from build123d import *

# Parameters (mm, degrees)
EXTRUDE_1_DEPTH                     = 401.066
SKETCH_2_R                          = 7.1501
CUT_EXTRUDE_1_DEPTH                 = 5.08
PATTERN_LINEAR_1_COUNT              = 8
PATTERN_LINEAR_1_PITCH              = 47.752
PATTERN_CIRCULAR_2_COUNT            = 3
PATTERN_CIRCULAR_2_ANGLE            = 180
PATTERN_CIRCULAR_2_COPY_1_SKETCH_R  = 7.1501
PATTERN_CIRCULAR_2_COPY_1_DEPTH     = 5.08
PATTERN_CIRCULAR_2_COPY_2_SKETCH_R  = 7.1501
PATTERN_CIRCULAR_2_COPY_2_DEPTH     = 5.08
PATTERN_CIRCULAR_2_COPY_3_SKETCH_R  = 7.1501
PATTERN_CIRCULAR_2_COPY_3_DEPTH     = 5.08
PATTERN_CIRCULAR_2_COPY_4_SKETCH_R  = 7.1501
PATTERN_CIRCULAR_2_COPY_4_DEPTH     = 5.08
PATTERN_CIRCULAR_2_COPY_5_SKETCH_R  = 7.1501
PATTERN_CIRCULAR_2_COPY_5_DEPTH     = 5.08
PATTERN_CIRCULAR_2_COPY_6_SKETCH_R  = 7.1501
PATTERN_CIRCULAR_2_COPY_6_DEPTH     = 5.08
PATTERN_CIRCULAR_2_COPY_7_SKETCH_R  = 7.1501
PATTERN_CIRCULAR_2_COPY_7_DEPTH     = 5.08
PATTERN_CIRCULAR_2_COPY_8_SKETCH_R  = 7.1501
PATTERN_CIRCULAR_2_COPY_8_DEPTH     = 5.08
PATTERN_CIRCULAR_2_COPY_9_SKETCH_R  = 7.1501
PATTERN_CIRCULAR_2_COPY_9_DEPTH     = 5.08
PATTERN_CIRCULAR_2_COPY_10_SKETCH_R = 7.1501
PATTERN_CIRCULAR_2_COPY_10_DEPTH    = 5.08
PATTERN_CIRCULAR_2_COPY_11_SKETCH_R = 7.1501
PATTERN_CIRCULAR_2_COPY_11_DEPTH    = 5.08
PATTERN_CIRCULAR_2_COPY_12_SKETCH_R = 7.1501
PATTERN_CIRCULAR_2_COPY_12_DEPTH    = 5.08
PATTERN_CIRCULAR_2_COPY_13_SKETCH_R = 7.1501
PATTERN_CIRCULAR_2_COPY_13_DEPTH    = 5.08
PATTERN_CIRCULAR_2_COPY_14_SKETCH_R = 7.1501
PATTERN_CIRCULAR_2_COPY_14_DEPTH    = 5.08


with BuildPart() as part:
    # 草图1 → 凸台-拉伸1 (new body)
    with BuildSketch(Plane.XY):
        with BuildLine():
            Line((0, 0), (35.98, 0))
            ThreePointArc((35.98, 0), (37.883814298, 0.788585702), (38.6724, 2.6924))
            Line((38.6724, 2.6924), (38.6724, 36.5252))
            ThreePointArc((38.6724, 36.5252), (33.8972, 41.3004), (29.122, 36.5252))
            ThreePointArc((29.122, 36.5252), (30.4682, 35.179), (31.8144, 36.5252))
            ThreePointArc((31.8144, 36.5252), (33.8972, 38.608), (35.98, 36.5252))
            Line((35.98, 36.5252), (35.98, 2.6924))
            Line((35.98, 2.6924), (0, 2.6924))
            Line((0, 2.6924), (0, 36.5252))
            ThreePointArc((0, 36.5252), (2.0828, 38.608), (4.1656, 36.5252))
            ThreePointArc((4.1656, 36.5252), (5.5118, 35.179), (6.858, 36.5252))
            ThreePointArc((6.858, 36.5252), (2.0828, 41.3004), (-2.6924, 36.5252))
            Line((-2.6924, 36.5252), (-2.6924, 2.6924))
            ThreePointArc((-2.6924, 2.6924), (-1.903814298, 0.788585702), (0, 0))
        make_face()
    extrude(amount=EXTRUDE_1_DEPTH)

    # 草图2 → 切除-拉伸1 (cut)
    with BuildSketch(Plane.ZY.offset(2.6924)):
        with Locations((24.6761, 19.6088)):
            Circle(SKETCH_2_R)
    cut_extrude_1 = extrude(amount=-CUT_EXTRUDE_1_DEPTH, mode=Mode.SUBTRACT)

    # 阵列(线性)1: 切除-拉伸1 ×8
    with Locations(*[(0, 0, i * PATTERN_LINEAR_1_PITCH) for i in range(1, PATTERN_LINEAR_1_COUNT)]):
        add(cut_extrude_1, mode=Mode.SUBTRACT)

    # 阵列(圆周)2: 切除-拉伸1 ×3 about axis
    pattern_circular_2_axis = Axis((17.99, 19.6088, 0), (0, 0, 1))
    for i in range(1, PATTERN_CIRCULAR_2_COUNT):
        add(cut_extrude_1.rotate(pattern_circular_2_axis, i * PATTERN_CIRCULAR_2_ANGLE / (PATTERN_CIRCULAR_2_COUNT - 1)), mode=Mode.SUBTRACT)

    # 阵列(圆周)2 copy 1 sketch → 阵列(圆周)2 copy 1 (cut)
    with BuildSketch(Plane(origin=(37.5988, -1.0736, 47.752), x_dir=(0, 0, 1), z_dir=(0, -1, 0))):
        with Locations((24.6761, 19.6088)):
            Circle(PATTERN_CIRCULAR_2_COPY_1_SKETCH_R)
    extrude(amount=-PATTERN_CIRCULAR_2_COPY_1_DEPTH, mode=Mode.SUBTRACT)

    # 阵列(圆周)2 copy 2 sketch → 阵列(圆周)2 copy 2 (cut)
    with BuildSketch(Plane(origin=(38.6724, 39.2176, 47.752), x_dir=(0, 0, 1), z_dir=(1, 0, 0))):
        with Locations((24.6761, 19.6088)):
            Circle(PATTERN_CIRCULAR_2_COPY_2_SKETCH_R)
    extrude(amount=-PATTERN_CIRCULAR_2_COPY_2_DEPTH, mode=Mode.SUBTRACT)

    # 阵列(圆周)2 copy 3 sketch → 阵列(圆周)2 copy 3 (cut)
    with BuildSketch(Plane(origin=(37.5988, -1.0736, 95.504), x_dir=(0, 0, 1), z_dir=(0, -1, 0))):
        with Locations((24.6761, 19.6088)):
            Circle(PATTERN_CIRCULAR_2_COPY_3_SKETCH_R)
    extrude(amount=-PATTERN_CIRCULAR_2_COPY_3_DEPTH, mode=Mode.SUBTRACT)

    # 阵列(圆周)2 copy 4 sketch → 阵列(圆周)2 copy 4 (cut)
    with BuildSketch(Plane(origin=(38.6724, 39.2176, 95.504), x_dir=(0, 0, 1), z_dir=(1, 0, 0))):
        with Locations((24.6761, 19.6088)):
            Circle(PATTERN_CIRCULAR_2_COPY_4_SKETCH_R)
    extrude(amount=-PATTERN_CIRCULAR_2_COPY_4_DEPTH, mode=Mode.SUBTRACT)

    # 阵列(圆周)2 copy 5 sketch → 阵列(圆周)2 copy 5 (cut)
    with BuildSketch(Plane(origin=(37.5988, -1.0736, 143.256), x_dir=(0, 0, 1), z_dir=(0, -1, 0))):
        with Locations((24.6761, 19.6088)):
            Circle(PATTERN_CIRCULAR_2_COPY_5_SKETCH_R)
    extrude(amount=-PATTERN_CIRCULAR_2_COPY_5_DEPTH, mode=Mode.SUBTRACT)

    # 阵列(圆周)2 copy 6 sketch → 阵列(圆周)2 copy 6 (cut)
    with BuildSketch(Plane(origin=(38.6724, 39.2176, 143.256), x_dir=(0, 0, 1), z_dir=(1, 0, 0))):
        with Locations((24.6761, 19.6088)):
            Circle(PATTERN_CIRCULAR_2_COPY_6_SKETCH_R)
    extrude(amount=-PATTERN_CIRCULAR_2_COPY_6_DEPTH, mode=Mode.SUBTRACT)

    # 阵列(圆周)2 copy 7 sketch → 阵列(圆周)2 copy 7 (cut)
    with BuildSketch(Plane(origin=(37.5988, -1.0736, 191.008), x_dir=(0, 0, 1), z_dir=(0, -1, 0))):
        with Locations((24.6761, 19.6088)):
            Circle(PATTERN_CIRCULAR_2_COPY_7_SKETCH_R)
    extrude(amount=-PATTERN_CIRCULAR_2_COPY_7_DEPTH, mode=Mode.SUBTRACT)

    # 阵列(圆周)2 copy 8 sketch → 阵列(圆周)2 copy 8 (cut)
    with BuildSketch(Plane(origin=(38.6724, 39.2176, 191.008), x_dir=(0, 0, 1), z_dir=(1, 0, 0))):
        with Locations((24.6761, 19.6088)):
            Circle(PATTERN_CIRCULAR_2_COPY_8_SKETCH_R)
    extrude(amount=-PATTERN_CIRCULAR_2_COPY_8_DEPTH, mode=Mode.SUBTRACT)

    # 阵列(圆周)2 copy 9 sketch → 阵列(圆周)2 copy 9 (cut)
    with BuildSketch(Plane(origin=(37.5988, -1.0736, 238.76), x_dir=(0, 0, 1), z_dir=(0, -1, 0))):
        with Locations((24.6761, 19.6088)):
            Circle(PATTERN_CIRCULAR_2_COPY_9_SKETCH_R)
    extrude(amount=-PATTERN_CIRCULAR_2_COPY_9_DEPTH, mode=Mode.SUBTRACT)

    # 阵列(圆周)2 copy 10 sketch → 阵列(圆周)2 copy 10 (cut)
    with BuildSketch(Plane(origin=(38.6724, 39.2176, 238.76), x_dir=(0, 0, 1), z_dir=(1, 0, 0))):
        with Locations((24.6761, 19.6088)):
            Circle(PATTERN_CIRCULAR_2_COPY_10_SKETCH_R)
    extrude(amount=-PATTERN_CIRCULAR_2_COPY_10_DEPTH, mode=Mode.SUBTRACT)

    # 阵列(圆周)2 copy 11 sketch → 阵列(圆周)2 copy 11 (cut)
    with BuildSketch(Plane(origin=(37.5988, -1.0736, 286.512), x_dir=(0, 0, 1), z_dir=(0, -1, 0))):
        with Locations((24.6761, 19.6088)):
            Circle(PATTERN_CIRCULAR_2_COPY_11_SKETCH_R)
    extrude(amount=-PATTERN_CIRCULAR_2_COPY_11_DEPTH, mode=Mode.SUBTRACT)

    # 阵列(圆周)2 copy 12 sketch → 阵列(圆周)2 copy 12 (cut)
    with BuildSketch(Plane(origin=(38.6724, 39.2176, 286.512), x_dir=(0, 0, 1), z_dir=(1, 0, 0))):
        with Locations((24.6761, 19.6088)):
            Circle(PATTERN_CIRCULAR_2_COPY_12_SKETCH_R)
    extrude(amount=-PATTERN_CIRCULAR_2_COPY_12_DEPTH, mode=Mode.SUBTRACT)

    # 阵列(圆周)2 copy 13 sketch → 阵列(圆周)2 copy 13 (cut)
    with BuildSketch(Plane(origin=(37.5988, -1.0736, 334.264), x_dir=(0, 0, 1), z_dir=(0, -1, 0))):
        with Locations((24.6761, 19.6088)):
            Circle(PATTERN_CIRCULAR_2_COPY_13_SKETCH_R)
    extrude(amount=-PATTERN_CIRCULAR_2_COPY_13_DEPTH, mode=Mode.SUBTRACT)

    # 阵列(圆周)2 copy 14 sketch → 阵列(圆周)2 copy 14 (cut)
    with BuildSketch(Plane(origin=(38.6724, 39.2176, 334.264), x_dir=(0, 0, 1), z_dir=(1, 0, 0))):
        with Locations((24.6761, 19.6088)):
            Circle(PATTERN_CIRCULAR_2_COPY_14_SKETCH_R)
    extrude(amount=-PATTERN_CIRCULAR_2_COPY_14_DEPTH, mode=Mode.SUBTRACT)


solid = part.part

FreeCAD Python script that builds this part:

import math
import FreeCAD as App
import Part
import Sketcher
from FreeCAD import Vector
Q = App.Units.Quantity

doc = App.newDocument("Part")
body = doc.addObject("PartDesign::Body", "Body")

sketch1 = body.newObject("Sketcher::SketchObject", "Sketch")
sketch1.AttachmentSupport = (doc.getObject("XY_Plane"), [""])
sketch1.MapMode = "FlatFace"
sketch1.addGeometry(Part.LineSegment(Vector(0, 0, 0), Vector(36, 0, 0)), False)
sketch1.addGeometry(Part.ArcOfCircle(Part.Circle(Vector(36, 2.7, 0), Vector(0, 0, 1), 2.7), math.radians(-90), math.radians(0)), False)
sketch1.addGeometry(Part.LineSegment(Vector(38.7, 2.7, 0), Vector(38.7, 36.5, 0)), False)
sketch1.addGeometry(Part.ArcOfCircle(Part.Circle(Vector(33.9, 36.5, 0), Vector(0, 0, 1), 4.8), math.radians(0), math.radians(180)), False)
sketch1.addGeometry(Part.ArcOfCircle(Part.Circle(Vector(30.5, 36.5, 0), Vector(0, 0, 1), 1.3), math.radians(180), math.radians(360)), False)
sketch1.addGeometry(Part.ArcOfCircle(Part.Circle(Vector(33.9, 36.5, 0), Vector(0, 0, 1), 2.1), math.radians(0), math.radians(180)), False)
sketch1.addGeometry(Part.LineSegment(Vector(36, 36.5, 0), Vector(36, 2.7, 0)), False)
sketch1.addGeometry(Part.LineSegment(Vector(36, 2.7, 0), Vector(0, 2.7, 0)), False)
sketch1.addGeometry(Part.LineSegment(Vector(0, 2.7, 0), Vector(0, 36.5, 0)), False)
sketch1.addGeometry(Part.ArcOfCircle(Part.Circle(Vector(2.1, 36.5, 0), Vector(0, 0, 1), 2.1), math.radians(0), math.radians(180)), False)
sketch1.addGeometry(Part.ArcOfCircle(Part.Circle(Vector(5.5, 36.5, 0), Vector(0, 0, 1), 1.3), math.radians(180), math.radians(360)), False)
sketch1.addGeometry(Part.ArcOfCircle(Part.Circle(Vector(2.1, 36.5, 0), Vector(0, 0, 1), 4.8), math.radians(0), math.radians(180)), False)
sketch1.addGeometry(Part.LineSegment(Vector(-2.7, 36.5, 0), Vector(-2.7, 2.7, 0)), False)
sketch1.addGeometry(Part.ArcOfCircle(Part.Circle(Vector(0, 2.7, 0), Vector(0, 0, 1), 2.7), math.radians(180), math.radians(270)), False)
sketch1.addConstraint(Sketcher.Constraint("Tangent", 0, 2, 1, 1))
sketch1.addConstraint(Sketcher.Constraint("Tangent", 1, 2, 2, 1))
sketch1.addConstraint(Sketcher.Constraint("Tangent", 2, 2, 3, 1))
sketch1.addConstraint(Sketcher.Constraint("Tangent", 3, 2, 4, 1))
sketch1.addConstraint(Sketcher.Constraint("Tangent", 4, 2, 5, 2))
sketch1.addConstraint(Sketcher.Constraint("Tangent", 5, 1, 6, 1))
sketch1.addConstraint(Sketcher.Constraint("Coincident", 6, 2, 7, 1))
sketch1.addConstraint(Sketcher.Constraint("Coincident", 7, 2, 8, 1))
sketch1.addConstraint(Sketcher.Constraint("Tangent", 8, 2, 9, 2))
sketch1.addConstraint(Sketcher.Constraint("Tangent", 9, 1, 10, 1))
sketch1.addConstraint(Sketcher.Constraint("Tangent", 10, 2, 11, 1))
sketch1.addConstraint(Sketcher.Constraint("Tangent", 11, 2, 12, 1))
sketch1.addConstraint(Sketcher.Constraint("Tangent", 12, 2, 13, 1))
sketch1.addConstraint(Sketcher.Constraint("Tangent", 13, 2, 0, 1))
sketch1.addConstraint(Sketcher.Constraint("Horizontal", 0))
sketch1.addConstraint(Sketcher.Constraint("Vertical", 2))
sketch1.addConstraint(Sketcher.Constraint("Vertical", 6))
sketch1.addConstraint(Sketcher.Constraint("Horizontal", 7))
sketch1.addConstraint(Sketcher.Constraint("Vertical", 8))
sketch1.addConstraint(Sketcher.Constraint("Vertical", 12))
sketch1.addConstraint(Sketcher.Constraint("Coincident", 13, 2, -1, 1))
sketch1.addConstraint(Sketcher.Constraint("Coincident", 5, 3, 3, 3))
sketch1.addConstraint(Sketcher.Constraint("Coincident", 11, 3, 9, 3))
sketch1.addConstraint(Sketcher.Constraint("Coincident", 6, 2, 1, 3))
sketch1.addConstraint(Sketcher.Constraint("Coincident", 7, 2, 13, 3))
sketch1.addConstraint(Sketcher.Constraint("Equal", 5, 9))
sketch1.addConstraint(Sketcher.Constraint("Horizontal", 3, 3, 4, 3))
sketch1.addConstraint(Sketcher.Constraint("Horizontal", 5, 3, 9, 3))
sketch1.addConstraint(Sketcher.Constraint("Horizontal", 9, 3, 10, 3))
sketch1.addConstraint(Sketcher.Constraint("Radius", 1, Q("0.106 in")))
sketch1.addConstraint(Sketcher.Constraint("Radius", 3, Q("0.188 in")))
sketch1.addConstraint(Sketcher.Constraint("DistanceY", 2, 1, 2, 2, Q("1.332 in")))
sketch1.addConstraint(Sketcher.Constraint("DistanceX", 0, 1, 0, 2, 35.98))
pad1 = body.newObject("PartDesign::Pad", "Pad")
pad1.Profile = sketch1
pad1.Length = Q("15.79 in")

sketch2 = body.newObject("Sketcher::SketchObject", "Sketch001")
sketch2.AttachmentSupport = (doc.getObject("YZ_Plane"), [""])
sketch2.MapMode = "FlatFace"
sketch2.AttachmentOffset = App.Placement(Vector(0, 0, -0.106 * 25.4), App.Rotation())
sketch2.addGeometry(Part.Circle(Vector(20, 25, 0), Vector(0, 0, 1), 7), False)
sketch2.addConstraint(Sketcher.Constraint("Diameter", 0, Q("0.563 in")))
sketch2.addConstraint(Sketcher.Constraint("DistanceX", -1, 1, 0, 3, Q("0.772 in")))
sketch2.addConstraint(Sketcher.Constraint("DistanceY", -1, 1, 0, 3, Q("0.9715 in")))
pocket1 = body.newObject("PartDesign::Pocket", "Pocket")
pocket1.Profile = sketch2
pocket1.Length = Q("0.2 in")
pocket1.Reversed = True
doc.recompute()

linearpattern = body.newObject("PartDesign::LinearPattern", "LinearPattern")
linearpattern.Originals = [pocket1]
linearpattern.Direction = (doc.getObject("Z_Axis"), [""])
linearpattern.Mode = "offset"
linearpattern.Offset = Q("1.88 in")
linearpattern.Occurrences = 8
body.Tip = linearpattern
doc.recompute()

datumline = body.newObject("PartDesign::Line", "DatumLine")
datumline.Placement = App.Placement(Vector(17.99, 19.6088, 0), App.Rotation(Vector(0, 0, 1), Vector(0, 0, 1)))
polarpattern = body.newObject("PartDesign::PolarPattern", "PolarPattern")
polarpattern.Originals = [pocket1]
polarpattern.Axis = (datumline, [""])
polarpattern.Angle = 180
polarpattern.Occurrences = 3
body.Tip = polarpattern

sketch3 = body.newObject("Sketcher::SketchObject", "Sketch002")
sketch3.AttachmentSupport = (doc.getObject("XZ_Plane"), [""])
sketch3.MapMode = "FlatFace"
sketch3.AttachmentOffset = App.Placement(Vector(0, 0, 1.0736), App.Rotation())
sketch3.addGeometry(Part.Circle(Vector(18, 72, 0), Vector(0, 0, 1), 7), False)
sketch3.addConstraint(Sketcher.Constraint("Diameter", 0, Q("0.563 in")))
sketch3.addConstraint(Sketcher.Constraint("DistanceY", -1, 1, 0, 3, Q("2.8515 in")))
sketch3.addConstraint(Sketcher.Constraint("DistanceX", -1, 1, 0, 3, 17.99))
pocket2 = body.newObject("PartDesign::Pocket", "Pocket001")
pocket2.Profile = sketch3
pocket2.Length = Q("0.2 in")

sketch4 = body.newObject("Sketcher::SketchObject", "Sketch003")
sketch4.AttachmentSupport = (doc.getObject("YZ_Plane"), [""])
sketch4.MapMode = "FlatFace"
sketch4.AttachmentOffset = App.Placement(Vector(0, 0, 38.6724), App.Rotation())
sketch4.addGeometry(Part.Circle(Vector(20, 72, 0), Vector(0, 0, 1), 7), False)
sketch4.addConstraint(Sketcher.Constraint("Diameter", 0, Q("0.563 in")))
sketch4.addConstraint(Sketcher.Constraint("DistanceX", -1, 1, 0, 3, Q("0.772 in")))
sketch4.addConstraint(Sketcher.Constraint("DistanceY", -1, 1, 0, 3, Q("2.8515 in")))
pocket3 = body.newObject("PartDesign::Pocket", "Pocket002")
pocket3.Profile = sketch4
pocket3.Length = Q("0.2 in")

sketch5 = body.newObject("Sketcher::SketchObject", "Sketch004")
sketch5.AttachmentSupport = (doc.getObject("XZ_Plane"), [""])
sketch5.MapMode = "FlatFace"
sketch5.AttachmentOffset = App.Placement(Vector(0, 0, 1.0736), App.Rotation())
sketch5.addGeometry(Part.Circle(Vector(18, 120, 0), Vector(0, 0, 1), 7), False)
sketch5.addConstraint(Sketcher.Constraint("Diameter", 0, Q("0.563 in")))
sketch5.addConstraint(Sketcher.Constraint("DistanceY", -1, 1, 0, 3, Q("4.7315 in")))
sketch5.addConstraint(Sketcher.Constraint("DistanceX", -1, 1, 0, 3, 17.99))
pocket4 = body.newObject("PartDesign::Pocket", "Pocket003")
pocket4.Profile = sketch5
pocket4.Length = Q("0.2 in")

sketch6 = body.newObject("Sketcher::SketchObject", "Sketch005")
sketch6.AttachmentSupport = (doc.getObject("YZ_Plane"), [""])
sketch6.MapMode = "FlatFace"
sketch6.AttachmentOffset = App.Placement(Vector(0, 0, 38.6724), App.Rotation())
sketch6.addGeometry(Part.Circle(Vector(20, 120, 0), Vector(0, 0, 1), 7), False)
sketch6.addConstraint(Sketcher.Constraint("Diameter", 0, Q("0.563 in")))
sketch6.addConstraint(Sketcher.Constraint("DistanceX", -1, 1, 0, 3, Q("0.772 in")))
sketch6.addConstraint(Sketcher.Constraint("DistanceY", -1, 1, 0, 3, Q("4.7315 in")))
pocket5 = body.newObject("PartDesign::Pocket", "Pocket004")
pocket5.Profile = sketch6
pocket5.Length = Q("0.2 in")

sketch7 = body.newObject("Sketcher::SketchObject", "Sketch006")
sketch7.AttachmentSupport = (doc.getObject("XZ_Plane"), [""])
sketch7.MapMode = "FlatFace"
sketch7.AttachmentOffset = App.Placement(Vector(0, 0, 1.0736), App.Rotation())
sketch7.addGeometry(Part.Circle(Vector(18, 168, 0), Vector(0, 0, 1), 7), False)
sketch7.addConstraint(Sketcher.Constraint("Diameter", 0, Q("0.563 in")))
sketch7.addConstraint(Sketcher.Constraint("DistanceY", -1, 1, 0, 3, Q("6.6115 in")))
sketch7.addConstraint(Sketcher.Constraint("DistanceX", -1, 1, 0, 3, 17.99))
pocket6 = body.newObject("PartDesign::Pocket", "Pocket005")
pocket6.Profile = sketch7
pocket6.Length = Q("0.2 in")

sketch8 = body.newObject("Sketcher::SketchObject", "Sketch007")
sketch8.AttachmentSupport = (doc.getObject("YZ_Plane"), [""])
sketch8.MapMode = "FlatFace"
sketch8.AttachmentOffset = App.Placement(Vector(0, 0, 38.6724), App.Rotation())
sketch8.addGeometry(Part.Circle(Vector(20, 168, 0), Vector(0, 0, 1), 7), False)
sketch8.addConstraint(Sketcher.Constraint("Diameter", 0, Q("0.563 in")))
sketch8.addConstraint(Sketcher.Constraint("DistanceX", -1, 1, 0, 3, Q("0.772 in")))
sketch8.addConstraint(Sketcher.Constraint("DistanceY", -1, 1, 0, 3, Q("6.6115 in")))
pocket7 = body.newObject("PartDesign::Pocket", "Pocket006")
pocket7.Profile = sketch8
pocket7.Length = Q("0.2 in")

sketch9 = body.newObject("Sketcher::SketchObject", "Sketch008")
sketch9.AttachmentSupport = (doc.getObject("XZ_Plane"), [""])
sketch9.MapMode = "FlatFace"
sketch9.AttachmentOffset = App.Placement(Vector(0, 0, 1.0736), App.Rotation())
sketch9.addGeometry(Part.Circle(Vector(18, 216, 0), Vector(0, 0, 1), 7), False)
sketch9.addConstraint(Sketcher.Constraint("Diameter", 0, Q("0.563 in")))
sketch9.addConstraint(Sketcher.Constraint("DistanceY", -1, 1, 0, 3, Q("8.4915 in")))
sketch9.addConstraint(Sketcher.Constraint("DistanceX", -1, 1, 0, 3, 17.99))
pocket8 = body.newObject("PartDesign::Pocket", "Pocket007")
pocket8.Profile = sketch9
pocket8.Length = Q("0.2 in")

sketch10 = body.newObject("Sketcher::SketchObject", "Sketch009")
sketch10.AttachmentSupport = (doc.getObject("YZ_Plane"), [""])
sketch10.MapMode = "FlatFace"
sketch10.AttachmentOffset = App.Placement(Vector(0, 0, 38.6724), App.Rotation())
sketch10.addGeometry(Part.Circle(Vector(20, 216, 0), Vector(0, 0, 1), 7), False)
sketch10.addConstraint(Sketcher.Constraint("Diameter", 0, Q("0.563 in")))
sketch10.addConstraint(Sketcher.Constraint("DistanceX", -1, 1, 0, 3, Q("0.772 in")))
sketch10.addConstraint(Sketcher.Constraint("DistanceY", -1, 1, 0, 3, Q("8.4915 in")))
pocket9 = body.newObject("PartDesign::Pocket", "Pocket008")
pocket9.Profile = sketch10
pocket9.Length = Q("0.2 in")

sketch11 = body.newObject("Sketcher::SketchObject", "Sketch010")
sketch11.AttachmentSupport = (doc.getObject("XZ_Plane"), [""])
sketch11.MapMode = "FlatFace"
sketch11.AttachmentOffset = App.Placement(Vector(0, 0, 1.0736), App.Rotation())
sketch11.addGeometry(Part.Circle(Vector(18, 263, 0), Vector(0, 0, 1), 7), False)
sketch11.addConstraint(Sketcher.Constraint("Diameter", 0, Q("0.563 in")))
sketch11.addConstraint(Sketcher.Constraint("DistanceY", -1, 1, 0, 3, Q("10.3715 in")))
sketch11.addConstraint(Sketcher.Constraint("DistanceX", -1, 1, 0, 3, 17.99))
pocket10 = body.newObject("PartDesign::Pocket", "Pocket009")
pocket10.Profile = sketch11
pocket10.Length = Q("0.2 in")

sketch12 = body.newObject("Sketcher::SketchObject", "Sketch011")
sketch12.AttachmentSupport = (doc.getObject("YZ_Plane"), [""])
sketch12.MapMode = "FlatFace"
sketch12.AttachmentOffset = App.Placement(Vector(0, 0, 38.6724), App.Rotation())
sketch12.addGeometry(Part.Circle(Vector(20, 263, 0), Vector(0, 0, 1), 7), False)
sketch12.addConstraint(Sketcher.Constraint("Diameter", 0, Q("0.563 in")))
sketch12.addConstraint(Sketcher.Constraint("DistanceX", -1, 1, 0, 3, Q("0.772 in")))
sketch12.addConstraint(Sketcher.Constraint("DistanceY", -1, 1, 0, 3, Q("10.3715 in")))
pocket11 = body.newObject("PartDesign::Pocket", "Pocket010")
pocket11.Profile = sketch12
pocket11.Length = Q("0.2 in")

sketch13 = body.newObject("Sketcher::SketchObject", "Sketch012")
sketch13.AttachmentSupport = (doc.getObject("XZ_Plane"), [""])
sketch13.MapMode = "FlatFace"
sketch13.AttachmentOffset = App.Placement(Vector(0, 0, 1.0736), App.Rotation())
sketch13.addGeometry(Part.Circle(Vector(18, 311, 0), Vector(0, 0, 1), 7), False)
sketch13.addConstraint(Sketcher.Constraint("Diameter", 0, Q("0.563 in")))
sketch13.addConstraint(Sketcher.Constraint("DistanceY", -1, 1, 0, 3, Q("12.2515 in")))
sketch13.addConstraint(Sketcher.Constraint("DistanceX", -1, 1, 0, 3, 17.99))
pocket12 = body.newObject("PartDesign::Pocket", "Pocket011")
pocket12.Profile = sketch13
pocket12.Length = Q("0.2 in")

sketch14 = body.newObject("Sketcher::SketchObject", "Sketch013")
sketch14.AttachmentSupport = (doc.getObject("YZ_Plane"), [""])
sketch14.MapMode = "FlatFace"
sketch14.AttachmentOffset = App.Placement(Vector(0, 0, 38.6724), App.Rotation())
sketch14.addGeometry(Part.Circle(Vector(20, 311, 0), Vector(0, 0, 1), 7), False)
sketch14.addConstraint(Sketcher.Constraint("Diameter", 0, Q("0.563 in")))
sketch14.addConstraint(Sketcher.Constraint("DistanceX", -1, 1, 0, 3, Q("0.772 in")))
sketch14.addConstraint(Sketcher.Constraint("DistanceY", -1, 1, 0, 3, Q("12.2515 in")))
pocket13 = body.newObject("PartDesign::Pocket", "Pocket012")
pocket13.Profile = sketch14
pocket13.Length = Q("0.2 in")

sketch15 = body.newObject("Sketcher::SketchObject", "Sketch014")
sketch15.AttachmentSupport = (doc.getObject("XZ_Plane"), [""])
sketch15.MapMode = "FlatFace"
sketch15.AttachmentOffset = App.Placement(Vector(0, 0, 1.0736), App.Rotation())
sketch15.addGeometry(Part.Circle(Vector(18, 359, 0), Vector(0, 0, 1), 7), False)
sketch15.addConstraint(Sketcher.Constraint("Diameter", 0, Q("0.563 in")))
sketch15.addConstraint(Sketcher.Constraint("DistanceY", -1, 1, 0, 3, Q("14.1315 in")))
sketch15.addConstraint(Sketcher.Constraint("DistanceX", -1, 1, 0, 3, 17.99))
pocket14 = body.newObject("PartDesign::Pocket", "Pocket013")
pocket14.Profile = sketch15
pocket14.Length = Q("0.2 in")

sketch16 = body.newObject("Sketcher::SketchObject", "Sketch015")
sketch16.AttachmentSupport = (doc.getObject("YZ_Plane"), [""])
sketch16.MapMode = "FlatFace"
sketch16.AttachmentOffset = App.Placement(Vector(0, 0, 38.6724), App.Rotation())
sketch16.addGeometry(Part.Circle(Vector(20, 359, 0), Vector(0, 0, 1), 7), False)
sketch16.addConstraint(Sketcher.Constraint("Diameter", 0, Q("0.563 in")))
sketch16.addConstraint(Sketcher.Constraint("DistanceX", -1, 1, 0, 3, Q("0.772 in")))
sketch16.addConstraint(Sketcher.Constraint("DistanceY", -1, 1, 0, 3, Q("14.1315 in")))
pocket15 = body.newObject("PartDesign::Pocket", "Pocket014")
pocket15.Profile = sketch16
pocket15.Length = Q("0.2 in")

doc.recompute()
